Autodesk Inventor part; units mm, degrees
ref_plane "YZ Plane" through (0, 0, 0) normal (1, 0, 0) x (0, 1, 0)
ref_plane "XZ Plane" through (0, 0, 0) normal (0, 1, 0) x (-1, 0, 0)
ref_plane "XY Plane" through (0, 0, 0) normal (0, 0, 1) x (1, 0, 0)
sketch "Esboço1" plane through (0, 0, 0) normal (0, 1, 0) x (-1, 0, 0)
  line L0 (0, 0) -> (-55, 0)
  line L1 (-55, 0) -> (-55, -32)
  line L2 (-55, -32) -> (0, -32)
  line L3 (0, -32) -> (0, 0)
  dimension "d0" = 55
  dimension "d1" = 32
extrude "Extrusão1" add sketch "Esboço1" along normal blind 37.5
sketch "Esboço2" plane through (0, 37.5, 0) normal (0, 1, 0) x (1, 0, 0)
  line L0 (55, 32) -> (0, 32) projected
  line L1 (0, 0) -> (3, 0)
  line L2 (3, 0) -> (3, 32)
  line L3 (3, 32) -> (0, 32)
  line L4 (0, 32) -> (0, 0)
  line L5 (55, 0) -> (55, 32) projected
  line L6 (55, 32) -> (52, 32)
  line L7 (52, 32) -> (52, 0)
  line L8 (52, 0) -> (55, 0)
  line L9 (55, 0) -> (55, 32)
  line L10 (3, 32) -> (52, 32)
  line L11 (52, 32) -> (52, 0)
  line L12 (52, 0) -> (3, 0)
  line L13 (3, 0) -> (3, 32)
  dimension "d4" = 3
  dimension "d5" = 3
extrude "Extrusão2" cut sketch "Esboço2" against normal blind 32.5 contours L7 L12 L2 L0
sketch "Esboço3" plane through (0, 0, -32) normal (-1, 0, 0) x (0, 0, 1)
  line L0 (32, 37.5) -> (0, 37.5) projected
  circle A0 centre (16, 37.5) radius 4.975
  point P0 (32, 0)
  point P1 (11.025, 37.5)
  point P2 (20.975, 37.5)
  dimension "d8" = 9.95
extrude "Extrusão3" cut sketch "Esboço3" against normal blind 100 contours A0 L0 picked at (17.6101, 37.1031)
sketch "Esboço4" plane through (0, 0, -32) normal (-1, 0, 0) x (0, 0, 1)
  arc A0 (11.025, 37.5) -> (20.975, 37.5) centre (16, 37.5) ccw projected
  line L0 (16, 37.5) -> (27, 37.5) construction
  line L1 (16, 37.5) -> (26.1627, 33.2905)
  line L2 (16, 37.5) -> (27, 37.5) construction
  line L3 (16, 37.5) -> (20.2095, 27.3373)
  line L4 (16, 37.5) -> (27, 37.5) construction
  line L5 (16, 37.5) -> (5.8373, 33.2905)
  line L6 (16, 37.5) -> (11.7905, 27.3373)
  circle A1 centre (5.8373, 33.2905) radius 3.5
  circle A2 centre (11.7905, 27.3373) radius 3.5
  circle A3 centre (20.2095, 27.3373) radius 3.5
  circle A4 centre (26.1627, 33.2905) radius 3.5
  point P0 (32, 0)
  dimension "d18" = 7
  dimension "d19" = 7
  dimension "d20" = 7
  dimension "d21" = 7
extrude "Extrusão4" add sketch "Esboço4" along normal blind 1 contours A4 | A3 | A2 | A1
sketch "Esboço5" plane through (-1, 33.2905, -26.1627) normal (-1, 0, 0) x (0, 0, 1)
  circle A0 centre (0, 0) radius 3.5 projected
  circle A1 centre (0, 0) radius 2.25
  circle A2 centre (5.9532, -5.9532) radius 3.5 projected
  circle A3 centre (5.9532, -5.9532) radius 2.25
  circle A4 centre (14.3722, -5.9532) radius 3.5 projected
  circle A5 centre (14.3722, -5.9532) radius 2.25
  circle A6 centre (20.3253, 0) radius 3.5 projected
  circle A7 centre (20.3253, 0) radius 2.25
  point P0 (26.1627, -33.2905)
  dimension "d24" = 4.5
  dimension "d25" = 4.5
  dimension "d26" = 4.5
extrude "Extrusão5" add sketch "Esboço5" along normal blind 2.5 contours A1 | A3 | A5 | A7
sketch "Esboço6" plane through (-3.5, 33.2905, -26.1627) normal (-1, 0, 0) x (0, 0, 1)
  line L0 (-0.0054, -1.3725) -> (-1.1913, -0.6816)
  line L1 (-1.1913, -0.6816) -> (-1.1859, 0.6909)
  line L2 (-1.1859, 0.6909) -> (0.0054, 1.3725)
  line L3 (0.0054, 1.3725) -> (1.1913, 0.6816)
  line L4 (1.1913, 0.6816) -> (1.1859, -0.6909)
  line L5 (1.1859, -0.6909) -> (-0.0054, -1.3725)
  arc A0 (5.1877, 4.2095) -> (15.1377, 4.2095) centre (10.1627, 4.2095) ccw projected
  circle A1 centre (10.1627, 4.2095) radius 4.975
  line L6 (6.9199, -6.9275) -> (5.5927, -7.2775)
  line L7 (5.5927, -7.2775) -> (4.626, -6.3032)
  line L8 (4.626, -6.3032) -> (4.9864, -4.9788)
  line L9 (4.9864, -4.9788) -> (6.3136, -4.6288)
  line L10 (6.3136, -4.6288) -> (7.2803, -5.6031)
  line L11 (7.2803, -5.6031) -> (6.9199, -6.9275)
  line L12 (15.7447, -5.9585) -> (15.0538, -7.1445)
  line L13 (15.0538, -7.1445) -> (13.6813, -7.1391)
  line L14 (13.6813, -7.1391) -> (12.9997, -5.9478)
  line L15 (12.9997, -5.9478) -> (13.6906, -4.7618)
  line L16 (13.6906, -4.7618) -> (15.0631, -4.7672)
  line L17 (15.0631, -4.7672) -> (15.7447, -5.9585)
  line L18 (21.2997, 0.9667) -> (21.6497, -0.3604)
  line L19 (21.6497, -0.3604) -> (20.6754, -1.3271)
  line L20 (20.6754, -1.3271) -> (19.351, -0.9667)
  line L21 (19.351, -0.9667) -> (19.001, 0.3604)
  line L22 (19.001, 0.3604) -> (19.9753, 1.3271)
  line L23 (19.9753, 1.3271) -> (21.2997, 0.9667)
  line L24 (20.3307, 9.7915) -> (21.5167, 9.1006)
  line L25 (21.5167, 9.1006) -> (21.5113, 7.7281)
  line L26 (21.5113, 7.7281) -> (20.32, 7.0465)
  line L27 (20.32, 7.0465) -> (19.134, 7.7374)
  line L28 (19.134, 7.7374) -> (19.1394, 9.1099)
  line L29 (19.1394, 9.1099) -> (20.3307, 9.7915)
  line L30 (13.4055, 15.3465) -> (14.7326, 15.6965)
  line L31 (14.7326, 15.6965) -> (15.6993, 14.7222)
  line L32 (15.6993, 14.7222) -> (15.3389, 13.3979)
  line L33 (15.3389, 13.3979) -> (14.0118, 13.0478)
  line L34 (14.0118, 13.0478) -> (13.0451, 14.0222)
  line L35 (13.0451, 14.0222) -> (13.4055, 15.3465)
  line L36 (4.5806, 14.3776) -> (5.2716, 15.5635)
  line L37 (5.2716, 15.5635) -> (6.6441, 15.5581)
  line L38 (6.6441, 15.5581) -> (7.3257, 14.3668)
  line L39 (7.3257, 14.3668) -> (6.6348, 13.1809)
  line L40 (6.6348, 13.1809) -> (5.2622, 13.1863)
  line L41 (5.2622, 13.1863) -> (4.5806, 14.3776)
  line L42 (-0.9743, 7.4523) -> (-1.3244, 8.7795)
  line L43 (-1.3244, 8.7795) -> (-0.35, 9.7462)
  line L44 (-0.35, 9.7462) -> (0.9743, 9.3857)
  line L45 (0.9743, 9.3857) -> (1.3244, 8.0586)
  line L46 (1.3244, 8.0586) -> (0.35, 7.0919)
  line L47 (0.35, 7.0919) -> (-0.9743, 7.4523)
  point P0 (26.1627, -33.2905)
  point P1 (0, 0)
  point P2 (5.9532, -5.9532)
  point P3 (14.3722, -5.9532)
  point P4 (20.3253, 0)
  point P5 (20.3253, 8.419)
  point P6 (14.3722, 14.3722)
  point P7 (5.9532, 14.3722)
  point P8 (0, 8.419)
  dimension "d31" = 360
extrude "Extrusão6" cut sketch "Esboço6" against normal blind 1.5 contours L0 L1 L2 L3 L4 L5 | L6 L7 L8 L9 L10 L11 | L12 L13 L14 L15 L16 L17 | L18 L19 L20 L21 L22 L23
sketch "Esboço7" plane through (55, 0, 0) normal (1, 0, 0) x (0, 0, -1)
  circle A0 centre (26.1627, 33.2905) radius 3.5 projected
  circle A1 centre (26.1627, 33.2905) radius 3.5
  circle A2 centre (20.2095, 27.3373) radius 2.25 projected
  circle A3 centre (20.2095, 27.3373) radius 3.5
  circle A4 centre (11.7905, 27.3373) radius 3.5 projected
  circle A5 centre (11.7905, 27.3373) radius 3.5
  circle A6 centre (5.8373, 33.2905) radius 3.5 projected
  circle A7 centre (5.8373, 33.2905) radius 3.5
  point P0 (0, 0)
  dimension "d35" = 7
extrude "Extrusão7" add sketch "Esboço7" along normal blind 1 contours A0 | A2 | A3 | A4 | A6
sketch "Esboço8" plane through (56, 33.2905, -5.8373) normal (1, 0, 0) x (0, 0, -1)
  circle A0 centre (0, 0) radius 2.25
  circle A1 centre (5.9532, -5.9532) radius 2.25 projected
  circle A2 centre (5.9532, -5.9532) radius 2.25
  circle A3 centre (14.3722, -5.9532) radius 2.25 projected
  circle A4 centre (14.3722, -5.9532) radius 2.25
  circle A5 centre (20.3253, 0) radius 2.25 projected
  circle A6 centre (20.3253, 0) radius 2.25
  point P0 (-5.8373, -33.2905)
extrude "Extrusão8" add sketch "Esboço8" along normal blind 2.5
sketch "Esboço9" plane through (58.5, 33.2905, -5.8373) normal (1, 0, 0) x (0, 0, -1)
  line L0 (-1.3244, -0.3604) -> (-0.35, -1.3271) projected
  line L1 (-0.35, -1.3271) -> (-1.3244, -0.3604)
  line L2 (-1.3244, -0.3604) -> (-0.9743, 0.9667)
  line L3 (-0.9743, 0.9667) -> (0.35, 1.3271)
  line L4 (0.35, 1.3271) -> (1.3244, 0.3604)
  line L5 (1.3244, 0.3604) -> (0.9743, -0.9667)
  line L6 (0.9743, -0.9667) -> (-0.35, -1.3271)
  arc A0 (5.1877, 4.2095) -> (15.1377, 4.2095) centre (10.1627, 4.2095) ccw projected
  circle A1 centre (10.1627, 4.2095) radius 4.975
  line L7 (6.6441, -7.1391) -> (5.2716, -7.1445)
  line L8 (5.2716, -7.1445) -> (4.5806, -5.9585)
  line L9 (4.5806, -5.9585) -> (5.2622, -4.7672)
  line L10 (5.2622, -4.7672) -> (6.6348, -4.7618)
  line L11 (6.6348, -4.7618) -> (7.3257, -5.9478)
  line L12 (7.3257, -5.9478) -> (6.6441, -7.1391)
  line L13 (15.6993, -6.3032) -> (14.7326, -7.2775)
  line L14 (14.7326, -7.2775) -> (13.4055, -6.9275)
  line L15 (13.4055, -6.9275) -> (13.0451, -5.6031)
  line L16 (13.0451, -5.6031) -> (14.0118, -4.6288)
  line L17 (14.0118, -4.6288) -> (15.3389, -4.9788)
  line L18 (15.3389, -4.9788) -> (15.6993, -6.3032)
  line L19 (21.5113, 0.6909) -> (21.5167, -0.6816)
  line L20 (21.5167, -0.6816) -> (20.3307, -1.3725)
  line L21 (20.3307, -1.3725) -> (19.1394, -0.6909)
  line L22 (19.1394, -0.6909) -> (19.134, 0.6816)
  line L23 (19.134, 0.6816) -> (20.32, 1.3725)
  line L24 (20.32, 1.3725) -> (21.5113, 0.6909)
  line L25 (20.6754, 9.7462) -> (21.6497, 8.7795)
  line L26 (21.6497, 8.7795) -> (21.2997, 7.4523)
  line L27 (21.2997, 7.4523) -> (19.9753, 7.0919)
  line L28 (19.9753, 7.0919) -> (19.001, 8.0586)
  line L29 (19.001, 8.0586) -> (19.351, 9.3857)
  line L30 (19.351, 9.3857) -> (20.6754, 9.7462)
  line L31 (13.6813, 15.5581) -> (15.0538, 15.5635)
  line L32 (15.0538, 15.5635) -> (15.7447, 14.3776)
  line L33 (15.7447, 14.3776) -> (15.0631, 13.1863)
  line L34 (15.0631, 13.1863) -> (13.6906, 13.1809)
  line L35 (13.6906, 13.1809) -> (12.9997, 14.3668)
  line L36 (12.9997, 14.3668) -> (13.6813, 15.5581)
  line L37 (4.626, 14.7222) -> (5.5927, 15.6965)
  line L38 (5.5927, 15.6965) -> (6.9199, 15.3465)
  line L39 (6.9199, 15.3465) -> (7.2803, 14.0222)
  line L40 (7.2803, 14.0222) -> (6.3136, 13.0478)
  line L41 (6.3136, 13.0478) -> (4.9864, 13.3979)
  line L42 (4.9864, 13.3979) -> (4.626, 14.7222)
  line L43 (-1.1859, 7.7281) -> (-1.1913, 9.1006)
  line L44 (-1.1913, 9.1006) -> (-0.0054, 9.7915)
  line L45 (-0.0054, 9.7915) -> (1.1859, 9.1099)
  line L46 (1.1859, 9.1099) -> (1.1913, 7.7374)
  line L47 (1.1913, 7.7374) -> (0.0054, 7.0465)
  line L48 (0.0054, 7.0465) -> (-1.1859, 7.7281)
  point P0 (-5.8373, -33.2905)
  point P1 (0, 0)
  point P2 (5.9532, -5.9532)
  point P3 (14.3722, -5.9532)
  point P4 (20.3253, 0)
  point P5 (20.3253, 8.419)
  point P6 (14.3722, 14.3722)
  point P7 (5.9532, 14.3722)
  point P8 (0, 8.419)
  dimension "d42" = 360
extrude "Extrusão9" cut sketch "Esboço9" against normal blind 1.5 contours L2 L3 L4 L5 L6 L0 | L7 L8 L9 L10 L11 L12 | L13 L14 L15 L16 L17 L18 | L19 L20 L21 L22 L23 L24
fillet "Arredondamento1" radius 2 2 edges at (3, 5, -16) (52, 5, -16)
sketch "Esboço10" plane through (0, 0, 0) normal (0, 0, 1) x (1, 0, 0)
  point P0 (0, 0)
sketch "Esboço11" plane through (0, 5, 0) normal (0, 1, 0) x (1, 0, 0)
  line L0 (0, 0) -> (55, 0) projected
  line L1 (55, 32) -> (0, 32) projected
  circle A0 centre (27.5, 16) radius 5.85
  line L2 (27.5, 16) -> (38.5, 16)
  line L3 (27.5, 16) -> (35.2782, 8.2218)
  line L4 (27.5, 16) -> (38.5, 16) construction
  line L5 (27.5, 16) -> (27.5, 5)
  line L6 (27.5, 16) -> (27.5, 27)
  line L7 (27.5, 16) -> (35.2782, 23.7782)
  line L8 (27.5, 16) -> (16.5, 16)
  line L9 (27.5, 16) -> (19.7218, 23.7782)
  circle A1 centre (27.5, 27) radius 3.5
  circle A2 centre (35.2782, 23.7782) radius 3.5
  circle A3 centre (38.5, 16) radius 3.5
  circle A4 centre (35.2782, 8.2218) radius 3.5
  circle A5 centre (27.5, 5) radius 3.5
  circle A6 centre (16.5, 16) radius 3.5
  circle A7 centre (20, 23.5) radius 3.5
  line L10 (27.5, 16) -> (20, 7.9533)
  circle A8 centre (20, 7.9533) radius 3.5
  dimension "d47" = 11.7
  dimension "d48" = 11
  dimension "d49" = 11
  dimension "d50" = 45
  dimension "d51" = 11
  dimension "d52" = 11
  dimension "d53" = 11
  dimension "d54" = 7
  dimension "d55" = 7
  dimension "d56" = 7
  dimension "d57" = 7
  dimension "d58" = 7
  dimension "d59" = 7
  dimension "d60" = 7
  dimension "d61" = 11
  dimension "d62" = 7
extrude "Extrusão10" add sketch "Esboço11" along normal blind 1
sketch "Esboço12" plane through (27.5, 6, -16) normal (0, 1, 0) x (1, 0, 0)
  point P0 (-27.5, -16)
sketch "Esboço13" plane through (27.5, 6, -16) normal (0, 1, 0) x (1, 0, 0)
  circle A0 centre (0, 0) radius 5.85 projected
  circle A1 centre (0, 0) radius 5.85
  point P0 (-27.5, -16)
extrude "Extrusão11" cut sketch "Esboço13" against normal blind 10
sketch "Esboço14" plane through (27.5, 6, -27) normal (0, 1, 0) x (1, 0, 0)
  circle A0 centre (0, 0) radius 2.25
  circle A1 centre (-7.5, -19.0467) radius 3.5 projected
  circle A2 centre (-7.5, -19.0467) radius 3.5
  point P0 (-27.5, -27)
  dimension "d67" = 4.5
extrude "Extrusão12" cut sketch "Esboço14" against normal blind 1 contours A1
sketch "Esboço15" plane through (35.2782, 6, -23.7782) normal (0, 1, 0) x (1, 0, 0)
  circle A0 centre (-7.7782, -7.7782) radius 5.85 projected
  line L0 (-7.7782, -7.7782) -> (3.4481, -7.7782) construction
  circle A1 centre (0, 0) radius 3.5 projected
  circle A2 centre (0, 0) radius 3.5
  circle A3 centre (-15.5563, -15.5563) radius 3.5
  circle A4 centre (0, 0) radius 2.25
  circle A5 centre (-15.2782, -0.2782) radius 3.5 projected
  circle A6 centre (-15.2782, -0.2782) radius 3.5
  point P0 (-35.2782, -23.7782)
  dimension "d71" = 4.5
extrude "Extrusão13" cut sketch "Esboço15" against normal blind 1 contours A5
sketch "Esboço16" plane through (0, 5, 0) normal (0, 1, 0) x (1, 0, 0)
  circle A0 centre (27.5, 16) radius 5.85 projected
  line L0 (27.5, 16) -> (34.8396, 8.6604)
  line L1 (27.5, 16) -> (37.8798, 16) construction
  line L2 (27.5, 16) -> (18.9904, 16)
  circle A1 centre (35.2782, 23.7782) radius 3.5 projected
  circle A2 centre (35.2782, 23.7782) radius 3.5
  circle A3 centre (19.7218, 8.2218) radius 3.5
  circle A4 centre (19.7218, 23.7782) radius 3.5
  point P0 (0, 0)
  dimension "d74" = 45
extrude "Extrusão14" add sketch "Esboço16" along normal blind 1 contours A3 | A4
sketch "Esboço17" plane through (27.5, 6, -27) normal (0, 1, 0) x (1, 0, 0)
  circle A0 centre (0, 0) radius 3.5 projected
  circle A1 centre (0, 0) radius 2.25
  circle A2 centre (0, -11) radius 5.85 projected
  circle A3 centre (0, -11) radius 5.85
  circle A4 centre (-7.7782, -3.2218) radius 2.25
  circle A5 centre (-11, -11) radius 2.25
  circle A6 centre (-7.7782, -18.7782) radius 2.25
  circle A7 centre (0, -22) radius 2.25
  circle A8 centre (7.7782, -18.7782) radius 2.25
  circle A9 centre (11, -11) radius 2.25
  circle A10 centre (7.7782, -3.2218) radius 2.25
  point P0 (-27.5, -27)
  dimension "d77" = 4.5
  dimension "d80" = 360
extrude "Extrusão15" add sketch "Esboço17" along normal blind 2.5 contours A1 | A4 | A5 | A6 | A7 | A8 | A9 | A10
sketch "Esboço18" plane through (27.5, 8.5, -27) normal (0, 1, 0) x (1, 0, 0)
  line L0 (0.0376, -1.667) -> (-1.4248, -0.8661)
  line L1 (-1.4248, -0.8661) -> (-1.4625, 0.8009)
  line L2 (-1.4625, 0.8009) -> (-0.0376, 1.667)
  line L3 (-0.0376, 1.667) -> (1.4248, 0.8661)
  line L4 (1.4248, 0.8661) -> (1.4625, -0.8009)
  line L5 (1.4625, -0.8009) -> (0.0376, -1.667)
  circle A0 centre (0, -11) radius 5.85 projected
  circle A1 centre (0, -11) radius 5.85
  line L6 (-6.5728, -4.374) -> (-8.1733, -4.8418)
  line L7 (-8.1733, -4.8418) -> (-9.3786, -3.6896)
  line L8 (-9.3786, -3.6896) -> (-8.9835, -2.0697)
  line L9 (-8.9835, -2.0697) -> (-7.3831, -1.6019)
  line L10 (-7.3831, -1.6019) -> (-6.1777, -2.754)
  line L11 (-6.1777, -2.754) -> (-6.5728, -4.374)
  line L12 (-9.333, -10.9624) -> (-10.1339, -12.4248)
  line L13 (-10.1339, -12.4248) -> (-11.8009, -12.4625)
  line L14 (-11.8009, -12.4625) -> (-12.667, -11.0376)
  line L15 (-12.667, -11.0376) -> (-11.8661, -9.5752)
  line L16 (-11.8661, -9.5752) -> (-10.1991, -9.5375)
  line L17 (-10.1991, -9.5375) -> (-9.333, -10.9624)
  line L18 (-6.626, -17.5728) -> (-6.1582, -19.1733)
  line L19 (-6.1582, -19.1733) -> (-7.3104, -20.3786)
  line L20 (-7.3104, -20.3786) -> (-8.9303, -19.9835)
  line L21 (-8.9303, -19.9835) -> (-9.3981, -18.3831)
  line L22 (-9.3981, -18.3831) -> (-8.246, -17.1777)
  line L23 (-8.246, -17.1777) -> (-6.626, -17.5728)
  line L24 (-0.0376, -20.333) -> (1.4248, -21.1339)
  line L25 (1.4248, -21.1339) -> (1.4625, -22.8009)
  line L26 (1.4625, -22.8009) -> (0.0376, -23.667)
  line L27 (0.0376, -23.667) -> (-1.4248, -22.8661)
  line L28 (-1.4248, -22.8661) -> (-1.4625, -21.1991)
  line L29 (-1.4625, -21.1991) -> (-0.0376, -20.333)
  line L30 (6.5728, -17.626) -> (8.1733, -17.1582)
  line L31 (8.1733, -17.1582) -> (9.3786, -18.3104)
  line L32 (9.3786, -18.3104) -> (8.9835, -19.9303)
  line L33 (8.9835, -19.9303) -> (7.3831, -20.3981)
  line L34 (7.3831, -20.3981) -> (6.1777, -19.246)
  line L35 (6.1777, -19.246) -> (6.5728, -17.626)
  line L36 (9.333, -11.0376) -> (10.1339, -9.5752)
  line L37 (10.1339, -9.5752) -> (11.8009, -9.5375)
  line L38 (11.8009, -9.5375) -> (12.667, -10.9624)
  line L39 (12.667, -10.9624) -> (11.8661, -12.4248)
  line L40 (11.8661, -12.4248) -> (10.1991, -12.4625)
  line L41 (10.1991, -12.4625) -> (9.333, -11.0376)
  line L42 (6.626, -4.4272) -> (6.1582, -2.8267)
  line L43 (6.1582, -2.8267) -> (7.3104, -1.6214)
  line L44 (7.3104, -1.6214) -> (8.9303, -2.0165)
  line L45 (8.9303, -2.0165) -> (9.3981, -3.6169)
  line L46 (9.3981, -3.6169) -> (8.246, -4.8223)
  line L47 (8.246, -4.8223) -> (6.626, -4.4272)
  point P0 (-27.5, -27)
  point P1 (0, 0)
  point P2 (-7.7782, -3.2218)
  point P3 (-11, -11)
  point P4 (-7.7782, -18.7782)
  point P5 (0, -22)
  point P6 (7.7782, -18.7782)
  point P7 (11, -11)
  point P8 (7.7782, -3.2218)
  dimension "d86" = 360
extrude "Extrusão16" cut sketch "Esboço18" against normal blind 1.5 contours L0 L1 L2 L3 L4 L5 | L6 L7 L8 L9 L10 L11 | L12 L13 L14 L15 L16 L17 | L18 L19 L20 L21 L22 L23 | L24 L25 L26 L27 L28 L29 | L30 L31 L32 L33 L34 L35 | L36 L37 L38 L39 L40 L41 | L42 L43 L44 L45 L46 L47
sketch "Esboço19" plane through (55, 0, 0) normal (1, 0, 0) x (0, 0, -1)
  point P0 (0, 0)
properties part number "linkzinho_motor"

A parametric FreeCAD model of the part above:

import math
import FreeCAD as App
import Part
import Sketcher
from FreeCAD import Vector
Q = App.Units.Quantity


def edges_at(feature, points):
    """Names of the edges that pass closest to the given points."""
    edges = feature.Shape.Edges
    near = lambda p: min(range(len(edges)), key=lambda i: edges[i].distToShape(Part.Vertex(*p))[0])
    return sorted({f"Edge{near(p) + 1}" for p in points})


def add_polygon(sketch, points):
    """Adds a closed chain of lines whose ends are joined by coincident constraints."""
    first, n = sketch.GeometryCount, len(points)
    for a, b in zip(points, points[1:] + points[:1]):
        sketch.addGeometry(Part.LineSegment(App.Vector(*a, 0), App.Vector(*b, 0)), False)
    for i in range(n):
        sketch.addConstraint(Sketcher.Constraint("Coincident", first + i, 2, first + (i + 1) % n, 1))

doc = App.newDocument("Part")
body = doc.addObject("PartDesign::Body", "Body")

# Sketch on XZ plane
sketch1 = doc.addObject("Sketcher::SketchObject", "Sketch")
body.addObject(sketch1)
sketch1.AttachmentSupport = (doc.XZ_Plane, [""])
sketch1.MapMode = "FlatFace"
add_polygon(sketch1, [(0, -32), (0, 0), (55, 0), (55, -32)])  # lines 0-3
sketch1.addConstraint(Sketcher.Constraint("Vertical", 0))
sketch1.addConstraint(Sketcher.Constraint("Horizontal", 1))
sketch1.addConstraint(Sketcher.Constraint("Vertical", 2))
sketch1.addConstraint(Sketcher.Constraint("Horizontal", 3))
sketch1.addConstraint(Sketcher.Constraint("Coincident", 0, 2, -1, 1))
sketch1.addConstraint(Sketcher.Constraint("DistanceX", 1, 1, 1, 2, Q("55 mm")))
sketch1.addConstraint(Sketcher.Constraint("DistanceY", 0, 1, 0, 2, Q("32 mm")))
pad1 = doc.addObject("PartDesign::Pad", "Pad")
body.addObject(pad1)
pad1.Profile = sketch1
pad1.Length = 37.5
pad1.Reversed = True

# Sketch on XZ plane
sketch2 = doc.addObject("Sketcher::SketchObject", "Sketch001")
body.addObject(sketch2)
sketch2.AttachmentSupport = (doc.XZ_Plane, [""])
sketch2.MapMode = "FlatFace"
sketch2.AttachmentOffset = App.Placement(Vector(0, 0, -37.5), App.Rotation())
add_polygon(sketch2, [(52, 0), (52, -32), (3, -32), (3, 0)])  # lines 0-3
sketch2.addConstraint(Sketcher.Constraint("Vertical", 0))
sketch2.addConstraint(Sketcher.Constraint("Horizontal", 1))
sketch2.addConstraint(Sketcher.Constraint("Vertical", 2))
sketch2.addConstraint(Sketcher.Constraint("Horizontal", 3))
sketch2.addConstraint(Sketcher.Constraint("PointOnObject", 2, 2, -1))
sketch2.addConstraint(Sketcher.Constraint("DistanceX", -1, 1, 1, 2, Q("3 mm")))
sketch2.addConstraint(Sketcher.Constraint("DistanceX", 1, 2, 1, 1, Q("49 mm")))
sketch2.addConstraint(Sketcher.Constraint("DistanceY", 0, 2, 0, 1, Q("32 mm")))
pocket1 = doc.addObject("PartDesign::Pocket", "Pocket")
body.addObject(pocket1)
pocket1.Profile = sketch2
pocket1.Length = 32.5
pocket1.Reversed = True

# Sketch on YZ plane
sketch3 = doc.addObject("Sketcher::SketchObject", "Sketch002")
body.addObject(sketch3)
sketch3.AttachmentSupport = (doc.YZ_Plane, [""])
sketch3.MapMode = "FlatFace"
sketch3.addGeometry(Part.ArcOfCircle(Part.Circle(Vector(37.5, -16, 0), Vector(0, 0, 1), 4.975), math.radians(90), math.radians(270)), False)
sketch3.addGeometry(Part.LineSegment(Vector(37.5, -11.025, 0), Vector(37.5, -20.975, 0)), False)
sketch3.addConstraint(Sketcher.Constraint("Coincident", 0, 1, 1, 1))
sketch3.addConstraint(Sketcher.Constraint("Coincident", 1, 2, 0, 2))
sketch3.addConstraint(Sketcher.Constraint("Vertical", 1))
sketch3.addConstraint(Sketcher.Constraint("Radius", 0, Q("4.975 mm")))
sketch3.addConstraint(Sketcher.Constraint("DistanceY", 0, 3, -1, 1, Q("16 mm")))
sketch3.addConstraint(Sketcher.Constraint("DistanceX", -1, 1, 0, 3, Q("37.5 mm")))
sketch3.addConstraint(Sketcher.Constraint("DistanceX", -1, 1, 0, 1, Q("37.5 mm")))
pocket2 = doc.addObject("PartDesign::Pocket", "Pocket001")
body.addObject(pocket2)
pocket2.Profile = sketch3
pocket2.Length = 100
pocket2.Reversed = True

# Sketch on YZ plane
sketch4 = doc.addObject("Sketcher::SketchObject", "Sketch003")
body.addObject(sketch4)
sketch4.AttachmentSupport = (doc.YZ_Plane, [""])
sketch4.MapMode = "FlatFace"
sketch4.addGeometry(Part.Circle(Vector(33.2905, -5.8373, 0), Vector(0, 0, 1), 3.5), False)
sketch4.addGeometry(Part.Circle(Vector(27.3373, -11.7905, 0), Vector(0, 0, 1), 3.5), False)
sketch4.addGeometry(Part.Circle(Vector(27.3373, -20.2095, 0), Vector(0, 0, 1), 3.5), False)
sketch4.addGeometry(Part.Circle(Vector(33.2905, -26.1627, 0), Vector(0, 0, 1), 3.5), False)
sketch4.addConstraint(Sketcher.Constraint("Equal", 0, 1))
sketch4.addConstraint(Sketcher.Constraint("Equal", 1, 2))
sketch4.addConstraint(Sketcher.Constraint("Equal", 2, 3))
sketch4.addConstraint(Sketcher.Constraint("Vertical", 1, 3, 2, 3))
sketch4.addConstraint(Sketcher.Constraint("Vertical", 0, 3, 3, 3))
sketch4.addConstraint(Sketcher.Constraint("Diameter", 0, Q("7 mm")))
sketch4.addConstraint(Sketcher.Constraint("DistanceY", 2, 3, 1, 3, Q("8.419 mm")))
sketch4.addConstraint(Sketcher.Constraint("DistanceX", -1, 1, 0, 3, Q("33.2905 mm")))
sketch4.addConstraint(Sketcher.Constraint("DistanceY", 0, 3, -1, 1, Q("5.8373 mm")))
sketch4.addConstraint(Sketcher.Constraint("DistanceX", -1, 1, 1, 3, Q("27.3373 mm")))
sketch4.addConstraint(Sketcher.Constraint("DistanceY", 1, 3, -1, 1, Q("11.7905 mm")))
sketch4.addConstraint(Sketcher.Constraint("DistanceY", 3, 3, -1, 1, Q("26.1627 mm")))
pad2 = doc.addObject("PartDesign::Pad", "Pad001")
body.addObject(pad2)
pad2.Profile = sketch4
pad2.Length = 1
pad2.Reversed = True

# Sketch on YZ plane
sketch5 = doc.addObject("Sketcher::SketchObject", "Sketch004")
body.addObject(sketch5)
sketch5.AttachmentSupport = (doc.YZ_Plane, [""])
sketch5.MapMode = "FlatFace"
sketch5.AttachmentOffset = App.Placement(Vector(0, 0, -1), App.Rotation())
sketch5.addGeometry(Part.Circle(Vector(33.2905, -26.1627, 0), Vector(0, 0, 1), 2.25), False)
sketch5.addGeometry(Part.Circle(Vector(27.3373, -20.2095, 0), Vector(0, 0, 1), 2.25), False)
sketch5.addGeometry(Part.Circle(Vector(27.3373, -11.7905, 0), Vector(0, 0, 1), 2.25), False)
sketch5.addGeometry(Part.Circle(Vector(33.2905, -5.8374, 0), Vector(0, 0, 1), 2.25), False)
sketch5.addConstraint(Sketcher.Constraint("Equal", 0, 1))
sketch5.addConstraint(Sketcher.Constraint("Equal", 1, 2))
sketch5.addConstraint(Sketcher.Constraint("Equal", 2, 3))
sketch5.addConstraint(Sketcher.Constraint("Vertical", 1, 3, 2, 3))
sketch5.addConstraint(Sketcher.Constraint("Vertical", 0, 3, 3, 3))
sketch5.addConstraint(Sketcher.Constraint("Diameter", 0, Q("4.5 mm")))
sketch5.addConstraint(Sketcher.Constraint("DistanceY", 1, 3, 2, 3, Q("8.419 mm")))
sketch5.addConstraint(Sketcher.Constraint("DistanceY", 2, 3, 3, 3, Q("5.953 mm")))
sketch5.addConstraint(Sketcher.Constraint("DistanceX", -1, 1, 0, 3, Q("33.2905 mm")))
sketch5.addConstraint(Sketcher.Constraint("DistanceY", 0, 3, -1, 1, Q("26.1627 mm")))
sketch5.addConstraint(Sketcher.Constraint("DistanceX", -1, 1, 1, 3, Q("27.3373 mm")))
sketch5.addConstraint(Sketcher.Constraint("DistanceY", 1, 3, -1, 1, Q("20.2095 mm")))
pad3 = doc.addObject("PartDesign::Pad", "Pad002")
body.addObject(pad3)
pad3.Profile = sketch5
pad3.Length = 2.5
pad3.Reversed = True

# Sketch on YZ plane
sketch6 = doc.addObject("Sketcher::SketchObject", "Sketch005")
body.addObject(sketch6)
sketch6.AttachmentSupport = (doc.YZ_Plane, [""])
sketch6.MapMode = "FlatFace"
sketch6.AttachmentOffset = App.Placement(Vector(0, 0, -3.5), App.Rotation())
add_polygon(sketch6, [(32.6089, -27.354), (31.918, -26.1681), (32.5996, -24.9768), (33.9721, -24.9714), (34.663, -26.1573), (33.9814, -27.3486)])  # lines 0-5
add_polygon(sketch6, [(26.013, -20.57), (26.363, -19.2428), (27.6874, -18.8824), (28.6617, -19.8491), (28.3117, -21.1763), (26.9873, -21.5367)])  # lines 6-11
add_polygon(sketch6, [(26.146, -11.1089), (27.332, -10.418), (28.5233, -11.0996), (28.5287, -12.4721), (27.3427, -13.163), (26.1514, -12.4814)])  # lines 12-17
add_polygon(sketch6, [(32.9301, -4.513), (34.2572, -4.863), (34.6176, -6.1874), (33.6509, -7.1617), (32.3238, -6.8117), (31.9634, -5.4873)])  # lines 18-23
sketch6.addConstraint(Sketcher.Constraint("Parallel", 0, 3))
sketch6.addConstraint(Sketcher.Constraint("Parallel", 1, 4))
sketch6.addConstraint(Sketcher.Constraint("Parallel", 2, 5))
sketch6.addConstraint(Sketcher.Constraint("Parallel", 6, 9))
sketch6.addConstraint(Sketcher.Constraint("Parallel", 7, 10))
sketch6.addConstraint(Sketcher.Constraint("Parallel", 8, 11))
sketch6.addConstraint(Sketcher.Constraint("Perpendicular", 3, 12))
sketch6.addConstraint(Sketcher.Constraint("Perpendicular", 4, 13))
sketch6.addConstraint(Sketcher.Constraint("Perpendicular", 5, 14))
sketch6.addConstraint(Sketcher.Constraint("Parallel", 12, 15))
sketch6.addConstraint(Sketcher.Constraint("Parallel", 13, 16))
sketch6.addConstraint(Sketcher.Constraint("Parallel", 14, 17))
sketch6.addConstraint(Sketcher.Constraint("Perpendicular", 9, 18))
sketch6.addConstraint(Sketcher.Constraint("Perpendicular", 10, 19))
sketch6.addConstraint(Sketcher.Constraint("Perpendicular", 11, 20))
sketch6.addConstraint(Sketcher.Constraint("Parallel", 18, 21))
sketch6.addConstraint(Sketcher.Constraint("Parallel", 19, 22))
sketch6.addConstraint(Sketcher.Constraint("Parallel", 20, 23))
sketch6.addConstraint(Sketcher.Constraint("Equal", 0, 1))
sketch6.addConstraint(Sketcher.Constraint("Equal", 1, 2))
sketch6.addConstraint(Sketcher.Constraint("Equal", 2, 3))
sketch6.addConstraint(Sketcher.Constraint("Equal", 5, 6))
sketch6.addConstraint(Sketcher.Constraint("Equal", 6, 7))
sketch6.addConstraint(Sketcher.Constraint("Equal", 7, 8))
sketch6.addConstraint(Sketcher.Constraint("Equal", 8, 9))
sketch6.addConstraint(Sketcher.Constraint("Equal", 11, 12))
sketch6.addConstraint(Sketcher.Constraint("Equal", 12, 13))
sketch6.addConstraint(Sketcher.Constraint("Equal", 13, 14))
sketch6.addConstraint(Sketcher.Constraint("Equal", 14, 15))
sketch6.addConstraint(Sketcher.Constraint("Equal", 17, 18))
sketch6.addConstraint(Sketcher.Constraint("Equal", 18, 19))
sketch6.addConstraint(Sketcher.Constraint("Equal", 19, 20))
sketch6.addConstraint(Sketcher.Constraint("Equal", 20, 21))
sketch6.addConstraint(Sketcher.Constraint("DistanceX", 6, 2, 3, 2, Q("8.3 mm")))
sketch6.addConstraint(Sketcher.Constraint("DistanceX", 10, 2, 7, 2, Q("0.7 mm")))
sketch6.addConstraint(Sketcher.Constraint("DistanceY", 15, 2, 18, 2, Q("8.3 mm")))
sketch6.addConstraint(Sketcher.Constraint("DistanceY", 11, 2, -1, 1, Q("20.57 mm")))
sketch6.addConstraint(Sketcher.Constraint("DistanceX", -1, 1, 23, 2, Q("32.93 mm")))
sketch6.addConstraint(Sketcher.Constraint("DistanceX", 9, 2, 8, 2, Q("0.35 mm")))
sketch6.addConstraint(Sketcher.Constraint("DistanceY", 1, 2, 10, 2, Q("3.44 mm")))
sketch6.addConstraint(Sketcher.Constraint("DistanceX", 13, 2, 22, 2, Q("3.44 mm")))
sketch6.addConstraint(Sketcher.Constraint("DistanceX", -1, 1, 0, 2, Q("31.918 mm")))
sketch6.addConstraint(Sketcher.Constraint("DistanceY", 0, 2, -1, 1, Q("26.168 mm")))
sketch6.addConstraint(Sketcher.Constraint("DistanceX", -1, 1, 2, 2, Q("33.972 mm")))
sketch6.addConstraint(Sketcher.Constraint("DistanceX", -1, 1, 3, 2, Q("34.663 mm")))
sketch6.addConstraint(Sketcher.Constraint("DistanceY", 5, 2, -1, 1, Q("27.354 mm")))
sketch6.addConstraint(Sketcher.Constraint("DistanceY", 12, 2, -1, 1, Q("10.418 mm")))
sketch6.addConstraint(Sketcher.Constraint("DistanceY", 2, 2, 7, 2, Q("6.089 mm")))
pocket3 = doc.addObject("PartDesign::Pocket", "Pocket002")
body.addObject(pocket3)
pocket3.Profile = sketch6
pocket3.Length = 1.5
pocket3.Reversed = True

# Sketch on YZ plane
sketch7 = doc.addObject("Sketcher::SketchObject", "Sketch006")
body.addObject(sketch7)
sketch7.AttachmentSupport = (doc.YZ_Plane, [""])
sketch7.MapMode = "FlatFace"
sketch7.AttachmentOffset = App.Placement(Vector(0, 0, 55), App.Rotation())
sketch7.addGeometry(Part.Circle(Vector(33.2905, -26.1627, 0), Vector(0, 0, 1), 3.5), False)
sketch7.addGeometry(Part.Circle(Vector(27.3373, -20.2095, 0), Vector(0, 0, 1), 3.5), False)
sketch7.addGeometry(Part.Circle(Vector(27.3373, -11.7905, 0), Vector(0, 0, 1), 3.5), False)
sketch7.addGeometry(Part.Circle(Vector(33.2905, -5.8373, 0), Vector(0, 0, 1), 3.5), False)
sketch7.addConstraint(Sketcher.Constraint("Equal", 0, 1))
sketch7.addConstraint(Sketcher.Constraint("Equal", 1, 2))
sketch7.addConstraint(Sketcher.Constraint("Equal", 2, 3))
sketch7.addConstraint(Sketcher.Constraint("Vertical", 1, 3, 2, 3))
sketch7.addConstraint(Sketcher.Constraint("Vertical", 0, 3, 3, 3))
sketch7.addConstraint(Sketcher.Constraint("Diameter", 0, Q("7 mm")))
sketch7.addConstraint(Sketcher.Constraint("DistanceY", 1, 3, 2, 3, Q("8.419 mm")))
sketch7.addConstraint(Sketcher.Constraint("DistanceX", -1, 1, 0, 3, Q("33.2905 mm")))
sketch7.addConstraint(Sketcher.Constraint("DistanceY", 0, 3, -1, 1, Q("26.1627 mm")))
sketch7.addConstraint(Sketcher.Constraint("DistanceX", -1, 1, 1, 3, Q("27.3373 mm")))
sketch7.addConstraint(Sketcher.Constraint("DistanceY", 1, 3, -1, 1, Q("20.2095 mm")))
sketch7.addConstraint(Sketcher.Constraint("DistanceY", 3, 3, -1, 1, Q("5.8373 mm")))
pad4 = doc.addObject("PartDesign::Pad", "Pad003")
body.addObject(pad4)
pad4.Profile = sketch7
pad4.Length = 1

# Sketch on YZ plane
sketch8 = doc.addObject("Sketcher::SketchObject", "Sketch007")
body.addObject(sketch8)
sketch8.AttachmentSupport = (doc.YZ_Plane, [""])
sketch8.MapMode = "FlatFace"
sketch8.AttachmentOffset = App.Placement(Vector(0, 0, 56), App.Rotation())
sketch8.addGeometry(Part.Circle(Vector(33.2905, -5.8373, 0), Vector(0, 0, 1), 2.25), False)
sketch8.addGeometry(Part.Circle(Vector(27.3373, -11.7905, 0), Vector(0, 0, 1), 2.25), False)
sketch8.addGeometry(Part.Circle(Vector(27.3373, -20.2095, 0), Vector(0, 0, 1), 2.25), False)
sketch8.addGeometry(Part.Circle(Vector(33.2905, -26.1626, 0), Vector(0, 0, 1), 2.25), False)
sketch8.addConstraint(Sketcher.Constraint("Equal", 0, 1))
sketch8.addConstraint(Sketcher.Constraint("Equal", 1, 2))
sketch8.addConstraint(Sketcher.Constraint("Equal", 2, 3))
sketch8.addConstraint(Sketcher.Constraint("Vertical", 1, 3, 2, 3))
sketch8.addConstraint(Sketcher.Constraint("Vertical", 0, 3, 3, 3))
sketch8.addConstraint(Sketcher.Constraint("Diameter", 0, Q("4.5 mm")))
sketch8.addConstraint(Sketcher.Constraint("DistanceY", 2, 3, 1, 3, Q("8.419 mm")))
sketch8.addConstraint(Sketcher.Constraint("DistanceY", 3, 3, 2, 3, Q("5.953 mm")))
sketch8.addConstraint(Sketcher.Constraint("DistanceX", -1, 1, 0, 3, Q("33.2905 mm")))
sketch8.addConstraint(Sketcher.Constraint("DistanceY", 0, 3, -1, 1, Q("5.8373 mm")))
sketch8.addConstraint(Sketcher.Constraint("DistanceX", -1, 1, 1, 3, Q("27.3373 mm")))
sketch8.addConstraint(Sketcher.Constraint("DistanceY", 1, 3, -1, 1, Q("11.7905 mm")))
pad5 = doc.addObject("PartDesign::Pad", "Pad004")
body.addObject(pad5)
pad5.Profile = sketch8
pad5.Length = 2.5

# Sketch on YZ plane
sketch9 = doc.addObject("Sketcher::SketchObject", "Sketch008")
body.addObject(sketch9)
sketch9.AttachmentSupport = (doc.YZ_Plane, [""])
sketch9.MapMode = "FlatFace"
sketch9.AttachmentOffset = App.Placement(Vector(0, 0, 58.5), App.Rotation())
add_polygon(sketch9, [(34.2572, -4.863), (32.9301, -4.5129), (31.9634, -5.4873), (32.3238, -6.8116), (33.6509, -7.1617), (34.6176, -6.1873)])  # lines 0-5
add_polygon(sketch9, [(26.146, -11.1089), (26.1514, -12.4814), (27.3427, -13.163), (28.5287, -12.4721), (28.5233, -11.0995), (27.332, -10.4179)])  # lines 6-11
add_polygon(sketch9, [(26.013, -20.5699), (26.9873, -21.5366), (28.3117, -21.1762), (28.6617, -19.8491), (27.6874, -18.8824), (26.363, -19.2428)])  # lines 12-17
add_polygon(sketch9, [(32.6089, -27.354), (33.9814, -27.3486), (34.663, -26.1573), (33.9721, -24.9713), (32.5996, -24.9767), (31.918, -26.168)])  # lines 18-23
sketch9.addConstraint(Sketcher.Constraint("Parallel", 0, 3))
sketch9.addConstraint(Sketcher.Constraint("Parallel", 1, 4))
sketch9.addConstraint(Sketcher.Constraint("Parallel", 2, 5))
sketch9.addConstraint(Sketcher.Constraint("Parallel", 6, 9))
sketch9.addConstraint(Sketcher.Constraint("Parallel", 7, 10))
sketch9.addConstraint(Sketcher.Constraint("Parallel", 8, 11))
sketch9.addConstraint(Sketcher.Constraint("Perpendicular", 4, 12))
sketch9.addConstraint(Sketcher.Constraint("Perpendicular", 5, 13))
sketch9.addConstraint(Sketcher.Constraint("Perpendicular", 3, 14))
sketch9.addConstraint(Sketcher.Constraint("Parallel", 12, 15))
sketch9.addConstraint(Sketcher.Constraint("Parallel", 13, 16))
sketch9.addConstraint(Sketcher.Constraint("Parallel", 14, 17))
sketch9.addConstraint(Sketcher.Constraint("Perpendicular", 9, 18))
sketch9.addConstraint(Sketcher.Constraint("Perpendicular", 10, 19))
sketch9.addConstraint(Sketcher.Constraint("Perpendicular", 11, 20))
sketch9.addConstraint(Sketcher.Constraint("Parallel", 18, 21))
sketch9.addConstraint(Sketcher.Constraint("Parallel", 19, 22))
sketch9.addConstraint(Sketcher.Constraint("Parallel", 20, 23))
sketch9.addConstraint(Sketcher.Constraint("Equal", 0, 1))
sketch9.addConstraint(Sketcher.Constraint("Equal", 1, 2))
sketch9.addConstraint(Sketcher.Constraint("Equal", 2, 3))
sketch9.addConstraint(Sketcher.Constraint("Equal", 5, 6))
sketch9.addConstraint(Sketcher.Constraint("Equal", 6, 7))
sketch9.addConstraint(Sketcher.Constraint("Equal", 7, 8))
sketch9.addConstraint(Sketcher.Constraint("Equal", 8, 9))
sketch9.addConstraint(Sketcher.Constraint("Equal", 11, 12))
sketch9.addConstraint(Sketcher.Constraint("Equal", 12, 13))
sketch9.addConstraint(Sketcher.Constraint("Equal", 13, 14))
sketch9.addConstraint(Sketcher.Constraint("Equal", 14, 15))
sketch9.addConstraint(Sketcher.Constraint("Equal", 17, 18))
sketch9.addConstraint(Sketcher.Constraint("Equal", 18, 19))
sketch9.addConstraint(Sketcher.Constraint("Equal", 19, 20))
sketch9.addConstraint(Sketcher.Constraint("Equal", 20, 21))
sketch9.addConstraint(Sketcher.Constraint("DistanceY", 4, 2, 1, 2, Q("0.7 mm")))
sketch9.addConstraint(Sketcher.Constraint("DistanceX", -1, 1, 0, 2, Q("32.93 mm")))
sketch9.addConstraint(Sketcher.Constraint("DistanceY", 17, 2, -1, 1, Q("20.57 mm")))
sketch9.addConstraint(Sketcher.Constraint("DistanceY", 3, 2, 2, 2, Q("0.35 mm")))
sketch9.addConstraint(Sketcher.Constraint("DistanceY", 0, 2, -1, 1, Q("4.513 mm")))
sketch9.addConstraint(Sketcher.Constraint("DistanceX", -1, 1, 3, 2, Q("33.651 mm")))
sketch9.addConstraint(Sketcher.Constraint("DistanceY", 7, 2, -1, 1, Q("13.163 mm")))
sketch9.addConstraint(Sketcher.Constraint("DistanceY", 8, 2, -1, 1, Q("12.472 mm")))
sketch9.addConstraint(Sketcher.Constraint("DistanceX", -1, 1, 10, 2, Q("27.332 mm")))
sketch9.addConstraint(Sketcher.Constraint("DistanceY", 10, 2, -1, 1, Q("10.418 mm")))
sketch9.addConstraint(Sketcher.Constraint("DistanceX", -1, 1, 11, 2, Q("26.146 mm")))
sketch9.addConstraint(Sketcher.Constraint("DistanceX", -1, 1, 16, 2, Q("26.363 mm")))
sketch9.addConstraint(Sketcher.Constraint("DistanceX", -1, 1, 19, 2, Q("34.663 mm")))
sketch9.addConstraint(Sketcher.Constraint("DistanceY", 22, 2, -1, 1, Q("26.168 mm")))
sketch9.addConstraint(Sketcher.Constraint("DistanceX", 6, 2, 1, 2, Q("5.812 mm")))
pocket4 = doc.addObject("PartDesign::Pocket", "Pocket003")
body.addObject(pocket4)
pocket4.Profile = sketch9
pocket4.Length = 1.5
doc.recompute()

fillet = doc.addObject("PartDesign::Fillet", "Fillet")
body.addObject(fillet)
fillet.Base = (pocket4, edges_at(pocket4, [(3, 5, -16), (52, 5, -16)]))
fillet.Radius = 2

# Sketch on XZ plane
sketch10 = doc.addObject("Sketcher::SketchObject", "Sketch009")
body.addObject(sketch10)
sketch10.AttachmentSupport = (doc.XZ_Plane, [""])
sketch10.MapMode = "FlatFace"
sketch10.AttachmentOffset = App.Placement(Vector(0, 0, -5), App.Rotation())
sketch10.addGeometry(Part.Circle(Vector(27.5, -16, 0), Vector(0, 0, 1), 5.85), False)
sketch10.addGeometry(Part.Circle(Vector(35.2782, -8.2218, 0), Vector(0, 0, 1), 3.5), False)
sketch10.addGeometry(Part.Circle(Vector(27.5, -5, 0), Vector(0, 0, 1), 3.5), False)
sketch10.addGeometry(Part.Circle(Vector(20, -7.9533, 0), Vector(0, 0, 1), 3.5), False)
sketch10.addGeometry(Part.Circle(Vector(16.5, -16, 0), Vector(0, 0, 1), 3.5), False)
sketch10.addGeometry(Part.Circle(Vector(20, -23.5, 0), Vector(0, 0, 1), 3.5), False)
sketch10.addGeometry(Part.Circle(Vector(27.5, -27, 0), Vector(0, 0, 1), 3.5), False)
sketch10.addGeometry(Part.Circle(Vector(35.2782, -23.7782, 0), Vector(0, 0, 1), 3.5), False)
sketch10.addGeometry(Part.Circle(Vector(38.5, -16, 0), Vector(0, 0, 1), 3.5), False)
sketch10.addConstraint(Sketcher.Constraint("Equal", 1, 2))
sketch10.addConstraint(Sketcher.Constraint("Equal", 2, 3))
sketch10.addConstraint(Sketcher.Constraint("Equal", 3, 4))
sketch10.addConstraint(Sketcher.Constraint("Equal", 4, 5))
sketch10.addConstraint(Sketcher.Constraint("Equal", 5, 6))
sketch10.addConstraint(Sketcher.Constraint("Equal", 6, 7))
sketch10.addConstraint(Sketcher.Constraint("Equal", 7, 8))
sketch10.addConstraint(Sketcher.Constraint("Horizontal", 0, 3, 4, 3))
sketch10.addConstraint(Sketcher.Constraint("Horizontal", 4, 3, 8, 3))
sketch10.addConstraint(Sketcher.Constraint("Vertical", 0, 3, 2, 3))
sketch10.addConstraint(Sketcher.Constraint("Vertical", 3, 3, 5, 3))
sketch10.addConstraint(Sketcher.Constraint("Vertical", 2, 3, 6, 3))
sketch10.addConstraint(Sketcher.Constraint("Vertical", 1, 3, 7, 3))
sketch10.addConstraint(Sketcher.Constraint("Diameter", 1, Q("7 mm")))
sketch10.addConstraint(Sketcher.Constraint("Diameter", 0, Q("11.7 mm")))
sketch10.addConstraint(Sketcher.Constraint("DistanceY", 0, 3, 2, 3, Q("11 mm")))
sketch10.addConstraint(Sketcher.Constraint("DistanceX", 4, 3, 0, 3, Q("11 mm")))
sketch10.addConstraint(Sketcher.Constraint("DistanceY", 6, 3, 0, 3, Q("11 mm")))
sketch10.addConstraint(Sketcher.Constraint("DistanceX", 0, 3, 8, 3, Q("11 mm")))
sketch10.addConstraint(Sketcher.Constraint("DistanceY", 0, 3, -1, 1, Q("16 mm")))
sketch10.addConstraint(Sketcher.Constraint("DistanceX", -1, 1, 3, 3, Q("20 mm")))
sketch10.addConstraint(Sketcher.Constraint("DistanceX", -1, 1, 0, 3, Q("27.5 mm")))
sketch10.addConstraint(Sketcher.Constraint("DistanceY", 5, 3, -1, 1, Q("23.5 mm")))
sketch10.addConstraint(Sketcher.Constraint("DistanceX", -1, 1, 1, 3, Q("35.2782 mm")))
sketch10.addConstraint(Sketcher.Constraint("DistanceY", 1, 3, -1, 1, Q("8.2218 mm")))
sketch10.addConstraint(Sketcher.Constraint("DistanceY", 3, 3, -1, 1, Q("7.9533 mm")))
sketch10.addConstraint(Sketcher.Constraint("DistanceY", 7, 3, -1, 1, Q("23.7782 mm")))
pad6 = doc.addObject("PartDesign::Pad", "Pad005")
body.addObject(pad6)
pad6.Profile = sketch10
pad6.Length = 1
pad6.Reversed = True

# Sketch on XZ plane
sketch11 = doc.addObject("Sketcher::SketchObject", "Sketch010")
body.addObject(sketch11)
sketch11.AttachmentSupport = (doc.XZ_Plane, [""])
sketch11.MapMode = "FlatFace"
sketch11.AttachmentOffset = App.Placement(Vector(0, 0, -6), App.Rotation())
sketch11.addGeometry(Part.Circle(Vector(27.5, -16, 0), Vector(0, 0, 1), 5.85), False)
sketch11.addConstraint(Sketcher.Constraint("Diameter", 0, Q("11.7 mm")))
sketch11.addConstraint(Sketcher.Constraint("DistanceY", 0, 3, -1, 1, Q("16 mm")))
sketch11.addConstraint(Sketcher.Constraint("DistanceX", -1, 1, 0, 3, Q("27.5 mm")))
pocket5 = doc.addObject("PartDesign::Pocket", "Pocket004")
body.addObject(pocket5)
pocket5.Profile = sketch11
pocket5.Length = 10
pocket5.Reversed = True

# Sketch on XZ plane
sketch12 = doc.addObject("Sketcher::SketchObject", "Sketch011")
body.addObject(sketch12)
sketch12.AttachmentSupport = (doc.XZ_Plane, [""])
sketch12.MapMode = "FlatFace"
sketch12.AttachmentOffset = App.Placement(Vector(0, 0, -6), App.Rotation())
sketch12.addGeometry(Part.Circle(Vector(20, -7.9533, 0), Vector(0, 0, 1), 3.5), False)
sketch12.addConstraint(Sketcher.Constraint("Diameter", 0, Q("7 mm")))
sketch12.addConstraint(Sketcher.Constraint("DistanceX", -1, 1, 0, 3, Q("20 mm")))
sketch12.addConstraint(Sketcher.Constraint("DistanceY", 0, 3, -1, 1, Q("7.9533 mm")))
pocket6 = doc.addObject("PartDesign::Pocket", "Pocket005")
body.addObject(pocket6)
pocket6.Profile = sketch12
pocket6.Length = 1
pocket6.Reversed = True

# Sketch on XZ plane
sketch13 = doc.addObject("Sketcher::SketchObject", "Sketch012")
body.addObject(sketch13)
sketch13.AttachmentSupport = (doc.XZ_Plane, [""])
sketch13.MapMode = "FlatFace"
sketch13.AttachmentOffset = App.Placement(Vector(0, 0, -6), App.Rotation())
sketch13.addGeometry(Part.Circle(Vector(20, -23.5, 0), Vector(0, 0, 1), 3.5), False)
sketch13.addConstraint(Sketcher.Constraint("Diameter", 0, Q("7 mm")))
sketch13.addConstraint(Sketcher.Constraint("DistanceX", -1, 1, 0, 3, Q("20 mm")))
sketch13.addConstraint(Sketcher.Constraint("DistanceY", 0, 3, -1, 1, Q("23.5 mm")))
pocket7 = doc.addObject("PartDesign::Pocket", "Pocket006")
body.addObject(pocket7)
pocket7.Profile = sketch13
pocket7.Length = 1
pocket7.Reversed = True

# Sketch on XZ plane
sketch14 = doc.addObject("Sketcher::SketchObject", "Sketch013")
body.addObject(sketch14)
sketch14.AttachmentSupport = (doc.XZ_Plane, [""])
sketch14.MapMode = "FlatFace"
sketch14.AttachmentOffset = App.Placement(Vector(0, 0, -5), App.Rotation())
sketch14.addGeometry(Part.Circle(Vector(19.7218, -8.2218, 0), Vector(0, 0, 1), 3.5), False)
sketch14.addGeometry(Part.Circle(Vector(19.7218, -23.7782, 0), Vector(0, 0, 1), 3.5), False)
sketch14.addConstraint(Sketcher.Constraint("Equal", 0, 1))
sketch14.addConstraint(Sketcher.Constraint("Vertical", 0, 3, 1, 3))
sketch14.addConstraint(Sketcher.Constraint("Diameter", 0, Q("7 mm")))
sketch14.addConstraint(Sketcher.Constraint("DistanceX", -1, 1, 0, 3, Q("19.7218 mm")))
sketch14.addConstraint(Sketcher.Constraint("DistanceY", 0, 3, -1, 1, Q("8.2218 mm")))
sketch14.addConstraint(Sketcher.Constraint("DistanceY", 1, 3, -1, 1, Q("23.7782 mm")))
pad7 = doc.addObject("PartDesign::Pad", "Pad006")
body.addObject(pad7)
pad7.Profile = sketch14
pad7.Length = 1
pad7.Reversed = True

# Sketch on XZ plane
sketch15 = doc.addObject("Sketcher::SketchObject", "Sketch014")
body.addObject(sketch15)
sketch15.AttachmentSupport = (doc.XZ_Plane, [""])
sketch15.MapMode = "FlatFace"
sketch15.AttachmentOffset = App.Placement(Vector(0, 0, -6), App.Rotation())
sketch15.addGeometry(Part.Circle(Vector(27.5, -27, 0), Vector(0, 0, 1), 2.25), False)
sketch15.addGeometry(Part.Circle(Vector(19.7218, -23.7782, 0), Vector(0, 0, 1), 2.25), False)
sketch15.addGeometry(Part.Circle(Vector(16.5, -16, 0), Vector(0, 0, 1), 2.25), False)
sketch15.addGeometry(Part.Circle(Vector(19.7218, -8.2218, 0), Vector(0, 0, 1), 2.25), False)
sketch15.addGeometry(Part.Circle(Vector(27.5, -5, 0), Vector(0, 0, 1), 2.25), False)
sketch15.addGeometry(Part.Circle(Vector(35.2782, -8.2218, 0), Vector(0, 0, 1), 2.25), False)
sketch15.addGeometry(Part.Circle(Vector(38.5, -16, 0), Vector(0, 0, 1), 2.25), False)
sketch15.addGeometry(Part.Circle(Vector(35.2782, -23.7782, 0), Vector(0, 0, 1), 2.25), False)
sketch15.addConstraint(Sketcher.Constraint("Equal", 0, 1))
sketch15.addConstraint(Sketcher.Constraint("Equal", 1, 2))
sketch15.addConstraint(Sketcher.Constraint("Equal", 2, 3))
sketch15.addConstraint(Sketcher.Constraint("Equal", 3, 4))
sketch15.addConstraint(Sketcher.Constraint("Equal", 4, 5))
sketch15.addConstraint(Sketcher.Constraint("Equal", 5, 6))
sketch15.addConstraint(Sketcher.Constraint("Equal", 6, 7))
sketch15.addConstraint(Sketcher.Constraint("Horizontal", 3, 3, 5, 3))
sketch15.addConstraint(Sketcher.Constraint("Horizontal", 2, 3, 6, 3))
sketch15.addConstraint(Sketcher.Constraint("Horizontal", 1, 3, 7, 3))
sketch15.addConstraint(Sketcher.Constraint("Vertical", 1, 3, 3, 3))
sketch15.addConstraint(Sketcher.Constraint("Vertical", 0, 3, 4, 3))
sketch15.addConstraint(Sketcher.Constraint("Vertical", 5, 3, 7, 3))
sketch15.addConstraint(Sketcher.Constraint("Diameter", 0, Q("4.5 mm")))
sketch15.addConstraint(Sketcher.Constraint("DistanceY", 0, 3, -1, 1, Q("27 mm")))
sketch15.addConstraint(Sketcher.Constraint("DistanceY", 2, 3, -1, 1, Q("16 mm")))
sketch15.addConstraint(Sketcher.Constraint("DistanceY", 4, 3, -1, 1, Q("5 mm")))
sketch15.addConstraint(Sketcher.Constraint("DistanceX", 2, 3, 0, 3, Q("11 mm")))
sketch15.addConstraint(Sketcher.Constraint("DistanceX", 0, 3, 6, 3, Q("11 mm")))
sketch15.addConstraint(Sketcher.Constraint("DistanceX", -1, 1, 0, 3, Q("27.5 mm")))
sketch15.addConstraint(Sketcher.Constraint("DistanceX", -1, 1, 1, 3, Q("19.7218 mm")))
sketch15.addConstraint(Sketcher.Constraint("DistanceY", 1, 3, -1, 1, Q("23.7782 mm")))
sketch15.addConstraint(Sketcher.Constraint("DistanceY", 3, 3, -1, 1, Q("8.2218 mm")))
sketch15.addConstraint(Sketcher.Constraint("DistanceX", -1, 1, 5, 3, Q("35.2782 mm")))
pad8 = doc.addObject("PartDesign::Pad", "Pad007")
body.addObject(pad8)
pad8.Profile = sketch15
pad8.Length = 2.5
pad8.Reversed = True

# Sketch on XZ plane
sketch16 = doc.addObject("Sketcher::SketchObject", "Sketch015")
body.addObject(sketch16)
sketch16.AttachmentSupport = (doc.XZ_Plane, [""])
sketch16.MapMode = "FlatFace"
sketch16.AttachmentOffset = App.Placement(Vector(0, 0, -8.5), App.Rotation())
add_polygon(sketch16, [(26.0752, -26.1339), (27.5376, -25.333), (28.9625, -26.1991), (28.9248, -27.8661), (27.4624, -28.667), (26.0375, -27.8009)])  # lines 0-5
add_polygon(sketch16, [(19.3267, -22.1582), (20.9272, -22.626), (21.3223, -24.246), (20.1169, -25.3981), (18.5165, -24.9303), (18.1214, -23.3104)])  # lines 6-11
add_polygon(sketch16, [(17.3661, -14.5752), (18.167, -16.0376), (17.3009, -17.4625), (15.6339, -17.4248), (14.833, -15.9624), (15.6991, -14.5375)])  # lines 12-17
add_polygon(sketch16, [(21.3418, -7.8267), (20.874, -9.4272), (19.254, -9.8223), (18.1019, -8.6169), (18.5697, -7.0165), (20.1896, -6.6214)])  # lines 18-23
add_polygon(sketch16, [(28.9248, -5.8661), (27.4624, -6.667), (26.0375, -5.8009), (26.0752, -4.1339), (27.5376, -3.333), (28.9625, -4.1991)])  # lines 24-29
add_polygon(sketch16, [(35.6733, -9.8418), (34.0728, -9.374), (33.6777, -7.754), (34.8831, -6.6019), (36.4835, -7.0697), (36.8786, -8.6896)])  # lines 30-35
add_polygon(sketch16, [(37.6339, -17.4248), (36.833, -15.9624), (37.6991, -14.5375), (39.3661, -14.5752), (40.167, -16.0376), (39.3009, -17.4625)])  # lines 36-41
add_polygon(sketch16, [(33.6582, -24.1733), (34.126, -22.5728), (35.746, -22.1777), (36.8981, -23.3831), (36.4303, -24.9835), (34.8104, -25.3786)])  # lines 42-47
sketch16.addConstraint(Sketcher.Constraint("Parallel", 0, 3))
sketch16.addConstraint(Sketcher.Constraint("Parallel", 1, 4))
sketch16.addConstraint(Sketcher.Constraint("Parallel", 2, 5))
sketch16.addConstraint(Sketcher.Constraint("Parallel", 6, 9))
sketch16.addConstraint(Sketcher.Constraint("Parallel", 7, 10))
sketch16.addConstraint(Sketcher.Constraint("Parallel", 8, 11))
sketch16.addConstraint(Sketcher.Constraint("Perpendicular", 3, 12))
sketch16.addConstraint(Sketcher.Constraint("Perpendicular", 4, 13))
sketch16.addConstraint(Sketcher.Constraint("Perpendicular", 5, 14))
sketch16.addConstraint(Sketcher.Constraint("Parallel", 12, 15))
sketch16.addConstraint(Sketcher.Constraint("Parallel", 13, 16))
sketch16.addConstraint(Sketcher.Constraint("Parallel", 14, 17))
sketch16.addConstraint(Sketcher.Constraint("Perpendicular", 9, 18))
sketch16.addConstraint(Sketcher.Constraint("Perpendicular", 10, 19))
sketch16.addConstraint(Sketcher.Constraint("Perpendicular", 11, 20))
sketch16.addConstraint(Sketcher.Constraint("Parallel", 18, 21))
sketch16.addConstraint(Sketcher.Constraint("Parallel", 19, 22))
sketch16.addConstraint(Sketcher.Constraint("Parallel", 20, 23))
sketch16.addConstraint(Sketcher.Constraint("Perpendicular", 15, 24))
sketch16.addConstraint(Sketcher.Constraint("Perpendicular", 16, 25))
sketch16.addConstraint(Sketcher.Constraint("Perpendicular", 17, 26))
sketch16.addConstraint(Sketcher.Constraint("Parallel", 24, 27))
sketch16.addConstraint(Sketcher.Constraint("Parallel", 25, 28))
sketch16.addConstraint(Sketcher.Constraint("Parallel", 26, 29))
sketch16.addConstraint(Sketcher.Constraint("Perpendicular", 21, 30))
sketch16.addConstraint(Sketcher.Constraint("Perpendicular", 22, 31))
sketch16.addConstraint(Sketcher.Constraint("Perpendicular", 23, 32))
sketch16.addConstraint(Sketcher.Constraint("Parallel", 30, 33))
sketch16.addConstraint(Sketcher.Constraint("Parallel", 31, 34))
sketch16.addConstraint(Sketcher.Constraint("Parallel", 32, 35))
sketch16.addConstraint(Sketcher.Constraint("Perpendicular", 27, 36))
sketch16.addConstraint(Sketcher.Constraint("Perpendicular", 28, 37))
sketch16.addConstraint(Sketcher.Constraint("Perpendicular", 29, 38))
sketch16.addConstraint(Sketcher.Constraint("Parallel", 36, 39))
sketch16.addConstraint(Sketcher.Constraint("Parallel", 37, 40))
sketch16.addConstraint(Sketcher.Constraint("Parallel", 38, 41))
sketch16.addConstraint(Sketcher.Constraint("Perpendicular", 33, 42))
sketch16.addConstraint(Sketcher.Constraint("Perpendicular", 34, 43))
sketch16.addConstraint(Sketcher.Constraint("Perpendicular", 35, 44))
sketch16.addConstraint(Sketcher.Constraint("Parallel", 42, 45))
sketch16.addConstraint(Sketcher.Constraint("Parallel", 43, 46))
sketch16.addConstraint(Sketcher.Constraint("Parallel", 44, 47))
sketch16.addConstraint(Sketcher.Constraint("Horizontal", 15, 2, 36, 2))
sketch16.addConstraint(Sketcher.Constraint("Horizontal", 16, 2, 37, 2))
sketch16.addConstraint(Sketcher.Constraint("Horizontal", 17, 2, 38, 2))
sketch16.addConstraint(Sketcher.Constraint("Horizontal", 12, 2, 39, 2))
sketch16.addConstraint(Sketcher.Constraint("Horizontal", 13, 2, 40, 2))
sketch16.addConstraint(Sketcher.Constraint("Vertical", 3, 2, 24, 2))
sketch16.addConstraint(Sketcher.Constraint("Vertical", 4, 2, 25, 2))
sketch16.addConstraint(Sketcher.Constraint("Vertical", 5, 2, 26, 2))
sketch16.addConstraint(Sketcher.Constraint("Vertical", 0, 2, 27, 2))
sketch16.addConstraint(Sketcher.Constraint("Vertical", 1, 2, 28, 2))
sketch16.addConstraint(Sketcher.Constraint("Equal", 0, 1))
sketch16.addConstraint(Sketcher.Constraint("Equal", 1, 2))
sketch16.addConstraint(Sketcher.Constraint("Equal", 2, 3))
sketch16.addConstraint(Sketcher.Constraint("Equal", 5, 6))
sketch16.addConstraint(Sketcher.Constraint("Equal", 6, 7))
sketch16.addConstraint(Sketcher.Constraint("Equal", 7, 8))
sketch16.addConstraint(Sketcher.Constraint("Equal", 8, 9))
sketch16.addConstraint(Sketcher.Constraint("Equal", 11, 12))
sketch16.addConstraint(Sketcher.Constraint("Equal", 12, 13))
sketch16.addConstraint(Sketcher.Constraint("Equal", 13, 14))
sketch16.addConstraint(Sketcher.Constraint("Equal", 14, 15))
sketch16.addConstraint(Sketcher.Constraint("Equal", 17, 18))
sketch16.addConstraint(Sketcher.Constraint("Equal", 18, 19))
sketch16.addConstraint(Sketcher.Constraint("Equal", 19, 20))
sketch16.addConstraint(Sketcher.Constraint("Equal", 20, 21))
sketch16.addConstraint(Sketcher.Constraint("Equal", 29, 30))
sketch16.addConstraint(Sketcher.Constraint("Equal", 30, 31))
sketch16.addConstraint(Sketcher.Constraint("Equal", 31, 32))
sketch16.addConstraint(Sketcher.Constraint("Equal", 32, 33))
sketch16.addConstraint(Sketcher.Constraint("Equal", 41, 42))
sketch16.addConstraint(Sketcher.Constraint("Equal", 42, 43))
sketch16.addConstraint(Sketcher.Constraint("Equal", 43, 44))
sketch16.addConstraint(Sketcher.Constraint("Equal", 44, 45))
sketch16.addConstraint(Sketcher.Constraint("Angle", 11, Q("43.7097 deg")))
sketch16.addConstraint(Sketcher.Constraint("DistanceX", 3, 2, 1, 2, Q("1.5 mm")))
sketch16.addConstraint(Sketcher.Constraint("DistanceY", 7, 2, 6, 2, Q("1.62 mm")))
sketch16.addConstraint(Sketcher.Constraint("DistanceX", 7, 2, 3, 2, Q("6.14 mm")))
sketch16.addConstraint(Sketcher.Constraint("DistanceY", 8, 2, 11, 2, Q("3.24 mm")))
sketch16.addConstraint(Sketcher.Constraint("DistanceY", 15, 2, 19, 2, Q("6.14 mm")))
sketch16.addConstraint(Sketcher.Constraint("DistanceX", 27, 2, 31, 2, Q("6.14 mm")))
sketch16.addConstraint(Sketcher.Constraint("DistanceY", 43, 2, 39, 2, Q("6.14 mm")))
sketch16.addConstraint(Sketcher.Constraint("DistanceY", 0, 2, -1, 1, Q("25.333 mm")))
sketch16.addConstraint(Sketcher.Constraint("DistanceY", 1, 2, -1, 1, Q("26.199 mm")))
sketch16.addConstraint(Sketcher.Constraint("DistanceY", 2, 2, -1, 1, Q("27.866 mm")))
sketch16.addConstraint(Sketcher.Constraint("DistanceY", 3, 2, -1, 1, Q("28.667 mm")))
sketch16.addConstraint(Sketcher.Constraint("DistanceY", 6, 2, -1, 1, Q("22.626 mm")))
sketch16.addConstraint(Sketcher.Constraint("DistanceX", -1, 1, 8, 2, Q("20.117 mm")))
sketch16.addConstraint(Sketcher.Constraint("DistanceX", -1, 1, 12, 2, Q("18.167 mm")))
sketch16.addConstraint(Sketcher.Constraint("DistanceX", -1, 1, 18, 2, Q("20.874 mm")))
sketch16.addConstraint(Sketcher.Constraint("DistanceY", 20, 2, -1, 1, Q("8.617 mm")))
sketch16.addConstraint(Sketcher.Constraint("DistanceY", 24, 2, -1, 1, Q("6.667 mm")))
sketch16.addConstraint(Sketcher.Constraint("DistanceY", 30, 2, -1, 1, Q("9.374 mm")))
sketch16.addConstraint(Sketcher.Constraint("DistanceX", -1, 1, 36, 2, Q("36.833 mm")))
sketch16.addConstraint(Sketcher.Constraint("DistanceX", -1, 1, 42, 2, Q("34.126 mm")))
pocket8 = doc.addObject("PartDesign::Pocket", "Pocket007")
body.addObject(pocket8)
pocket8.Profile = sketch16
pocket8.Length = 1.5
pocket8.Reversed = True

doc.recompute()
